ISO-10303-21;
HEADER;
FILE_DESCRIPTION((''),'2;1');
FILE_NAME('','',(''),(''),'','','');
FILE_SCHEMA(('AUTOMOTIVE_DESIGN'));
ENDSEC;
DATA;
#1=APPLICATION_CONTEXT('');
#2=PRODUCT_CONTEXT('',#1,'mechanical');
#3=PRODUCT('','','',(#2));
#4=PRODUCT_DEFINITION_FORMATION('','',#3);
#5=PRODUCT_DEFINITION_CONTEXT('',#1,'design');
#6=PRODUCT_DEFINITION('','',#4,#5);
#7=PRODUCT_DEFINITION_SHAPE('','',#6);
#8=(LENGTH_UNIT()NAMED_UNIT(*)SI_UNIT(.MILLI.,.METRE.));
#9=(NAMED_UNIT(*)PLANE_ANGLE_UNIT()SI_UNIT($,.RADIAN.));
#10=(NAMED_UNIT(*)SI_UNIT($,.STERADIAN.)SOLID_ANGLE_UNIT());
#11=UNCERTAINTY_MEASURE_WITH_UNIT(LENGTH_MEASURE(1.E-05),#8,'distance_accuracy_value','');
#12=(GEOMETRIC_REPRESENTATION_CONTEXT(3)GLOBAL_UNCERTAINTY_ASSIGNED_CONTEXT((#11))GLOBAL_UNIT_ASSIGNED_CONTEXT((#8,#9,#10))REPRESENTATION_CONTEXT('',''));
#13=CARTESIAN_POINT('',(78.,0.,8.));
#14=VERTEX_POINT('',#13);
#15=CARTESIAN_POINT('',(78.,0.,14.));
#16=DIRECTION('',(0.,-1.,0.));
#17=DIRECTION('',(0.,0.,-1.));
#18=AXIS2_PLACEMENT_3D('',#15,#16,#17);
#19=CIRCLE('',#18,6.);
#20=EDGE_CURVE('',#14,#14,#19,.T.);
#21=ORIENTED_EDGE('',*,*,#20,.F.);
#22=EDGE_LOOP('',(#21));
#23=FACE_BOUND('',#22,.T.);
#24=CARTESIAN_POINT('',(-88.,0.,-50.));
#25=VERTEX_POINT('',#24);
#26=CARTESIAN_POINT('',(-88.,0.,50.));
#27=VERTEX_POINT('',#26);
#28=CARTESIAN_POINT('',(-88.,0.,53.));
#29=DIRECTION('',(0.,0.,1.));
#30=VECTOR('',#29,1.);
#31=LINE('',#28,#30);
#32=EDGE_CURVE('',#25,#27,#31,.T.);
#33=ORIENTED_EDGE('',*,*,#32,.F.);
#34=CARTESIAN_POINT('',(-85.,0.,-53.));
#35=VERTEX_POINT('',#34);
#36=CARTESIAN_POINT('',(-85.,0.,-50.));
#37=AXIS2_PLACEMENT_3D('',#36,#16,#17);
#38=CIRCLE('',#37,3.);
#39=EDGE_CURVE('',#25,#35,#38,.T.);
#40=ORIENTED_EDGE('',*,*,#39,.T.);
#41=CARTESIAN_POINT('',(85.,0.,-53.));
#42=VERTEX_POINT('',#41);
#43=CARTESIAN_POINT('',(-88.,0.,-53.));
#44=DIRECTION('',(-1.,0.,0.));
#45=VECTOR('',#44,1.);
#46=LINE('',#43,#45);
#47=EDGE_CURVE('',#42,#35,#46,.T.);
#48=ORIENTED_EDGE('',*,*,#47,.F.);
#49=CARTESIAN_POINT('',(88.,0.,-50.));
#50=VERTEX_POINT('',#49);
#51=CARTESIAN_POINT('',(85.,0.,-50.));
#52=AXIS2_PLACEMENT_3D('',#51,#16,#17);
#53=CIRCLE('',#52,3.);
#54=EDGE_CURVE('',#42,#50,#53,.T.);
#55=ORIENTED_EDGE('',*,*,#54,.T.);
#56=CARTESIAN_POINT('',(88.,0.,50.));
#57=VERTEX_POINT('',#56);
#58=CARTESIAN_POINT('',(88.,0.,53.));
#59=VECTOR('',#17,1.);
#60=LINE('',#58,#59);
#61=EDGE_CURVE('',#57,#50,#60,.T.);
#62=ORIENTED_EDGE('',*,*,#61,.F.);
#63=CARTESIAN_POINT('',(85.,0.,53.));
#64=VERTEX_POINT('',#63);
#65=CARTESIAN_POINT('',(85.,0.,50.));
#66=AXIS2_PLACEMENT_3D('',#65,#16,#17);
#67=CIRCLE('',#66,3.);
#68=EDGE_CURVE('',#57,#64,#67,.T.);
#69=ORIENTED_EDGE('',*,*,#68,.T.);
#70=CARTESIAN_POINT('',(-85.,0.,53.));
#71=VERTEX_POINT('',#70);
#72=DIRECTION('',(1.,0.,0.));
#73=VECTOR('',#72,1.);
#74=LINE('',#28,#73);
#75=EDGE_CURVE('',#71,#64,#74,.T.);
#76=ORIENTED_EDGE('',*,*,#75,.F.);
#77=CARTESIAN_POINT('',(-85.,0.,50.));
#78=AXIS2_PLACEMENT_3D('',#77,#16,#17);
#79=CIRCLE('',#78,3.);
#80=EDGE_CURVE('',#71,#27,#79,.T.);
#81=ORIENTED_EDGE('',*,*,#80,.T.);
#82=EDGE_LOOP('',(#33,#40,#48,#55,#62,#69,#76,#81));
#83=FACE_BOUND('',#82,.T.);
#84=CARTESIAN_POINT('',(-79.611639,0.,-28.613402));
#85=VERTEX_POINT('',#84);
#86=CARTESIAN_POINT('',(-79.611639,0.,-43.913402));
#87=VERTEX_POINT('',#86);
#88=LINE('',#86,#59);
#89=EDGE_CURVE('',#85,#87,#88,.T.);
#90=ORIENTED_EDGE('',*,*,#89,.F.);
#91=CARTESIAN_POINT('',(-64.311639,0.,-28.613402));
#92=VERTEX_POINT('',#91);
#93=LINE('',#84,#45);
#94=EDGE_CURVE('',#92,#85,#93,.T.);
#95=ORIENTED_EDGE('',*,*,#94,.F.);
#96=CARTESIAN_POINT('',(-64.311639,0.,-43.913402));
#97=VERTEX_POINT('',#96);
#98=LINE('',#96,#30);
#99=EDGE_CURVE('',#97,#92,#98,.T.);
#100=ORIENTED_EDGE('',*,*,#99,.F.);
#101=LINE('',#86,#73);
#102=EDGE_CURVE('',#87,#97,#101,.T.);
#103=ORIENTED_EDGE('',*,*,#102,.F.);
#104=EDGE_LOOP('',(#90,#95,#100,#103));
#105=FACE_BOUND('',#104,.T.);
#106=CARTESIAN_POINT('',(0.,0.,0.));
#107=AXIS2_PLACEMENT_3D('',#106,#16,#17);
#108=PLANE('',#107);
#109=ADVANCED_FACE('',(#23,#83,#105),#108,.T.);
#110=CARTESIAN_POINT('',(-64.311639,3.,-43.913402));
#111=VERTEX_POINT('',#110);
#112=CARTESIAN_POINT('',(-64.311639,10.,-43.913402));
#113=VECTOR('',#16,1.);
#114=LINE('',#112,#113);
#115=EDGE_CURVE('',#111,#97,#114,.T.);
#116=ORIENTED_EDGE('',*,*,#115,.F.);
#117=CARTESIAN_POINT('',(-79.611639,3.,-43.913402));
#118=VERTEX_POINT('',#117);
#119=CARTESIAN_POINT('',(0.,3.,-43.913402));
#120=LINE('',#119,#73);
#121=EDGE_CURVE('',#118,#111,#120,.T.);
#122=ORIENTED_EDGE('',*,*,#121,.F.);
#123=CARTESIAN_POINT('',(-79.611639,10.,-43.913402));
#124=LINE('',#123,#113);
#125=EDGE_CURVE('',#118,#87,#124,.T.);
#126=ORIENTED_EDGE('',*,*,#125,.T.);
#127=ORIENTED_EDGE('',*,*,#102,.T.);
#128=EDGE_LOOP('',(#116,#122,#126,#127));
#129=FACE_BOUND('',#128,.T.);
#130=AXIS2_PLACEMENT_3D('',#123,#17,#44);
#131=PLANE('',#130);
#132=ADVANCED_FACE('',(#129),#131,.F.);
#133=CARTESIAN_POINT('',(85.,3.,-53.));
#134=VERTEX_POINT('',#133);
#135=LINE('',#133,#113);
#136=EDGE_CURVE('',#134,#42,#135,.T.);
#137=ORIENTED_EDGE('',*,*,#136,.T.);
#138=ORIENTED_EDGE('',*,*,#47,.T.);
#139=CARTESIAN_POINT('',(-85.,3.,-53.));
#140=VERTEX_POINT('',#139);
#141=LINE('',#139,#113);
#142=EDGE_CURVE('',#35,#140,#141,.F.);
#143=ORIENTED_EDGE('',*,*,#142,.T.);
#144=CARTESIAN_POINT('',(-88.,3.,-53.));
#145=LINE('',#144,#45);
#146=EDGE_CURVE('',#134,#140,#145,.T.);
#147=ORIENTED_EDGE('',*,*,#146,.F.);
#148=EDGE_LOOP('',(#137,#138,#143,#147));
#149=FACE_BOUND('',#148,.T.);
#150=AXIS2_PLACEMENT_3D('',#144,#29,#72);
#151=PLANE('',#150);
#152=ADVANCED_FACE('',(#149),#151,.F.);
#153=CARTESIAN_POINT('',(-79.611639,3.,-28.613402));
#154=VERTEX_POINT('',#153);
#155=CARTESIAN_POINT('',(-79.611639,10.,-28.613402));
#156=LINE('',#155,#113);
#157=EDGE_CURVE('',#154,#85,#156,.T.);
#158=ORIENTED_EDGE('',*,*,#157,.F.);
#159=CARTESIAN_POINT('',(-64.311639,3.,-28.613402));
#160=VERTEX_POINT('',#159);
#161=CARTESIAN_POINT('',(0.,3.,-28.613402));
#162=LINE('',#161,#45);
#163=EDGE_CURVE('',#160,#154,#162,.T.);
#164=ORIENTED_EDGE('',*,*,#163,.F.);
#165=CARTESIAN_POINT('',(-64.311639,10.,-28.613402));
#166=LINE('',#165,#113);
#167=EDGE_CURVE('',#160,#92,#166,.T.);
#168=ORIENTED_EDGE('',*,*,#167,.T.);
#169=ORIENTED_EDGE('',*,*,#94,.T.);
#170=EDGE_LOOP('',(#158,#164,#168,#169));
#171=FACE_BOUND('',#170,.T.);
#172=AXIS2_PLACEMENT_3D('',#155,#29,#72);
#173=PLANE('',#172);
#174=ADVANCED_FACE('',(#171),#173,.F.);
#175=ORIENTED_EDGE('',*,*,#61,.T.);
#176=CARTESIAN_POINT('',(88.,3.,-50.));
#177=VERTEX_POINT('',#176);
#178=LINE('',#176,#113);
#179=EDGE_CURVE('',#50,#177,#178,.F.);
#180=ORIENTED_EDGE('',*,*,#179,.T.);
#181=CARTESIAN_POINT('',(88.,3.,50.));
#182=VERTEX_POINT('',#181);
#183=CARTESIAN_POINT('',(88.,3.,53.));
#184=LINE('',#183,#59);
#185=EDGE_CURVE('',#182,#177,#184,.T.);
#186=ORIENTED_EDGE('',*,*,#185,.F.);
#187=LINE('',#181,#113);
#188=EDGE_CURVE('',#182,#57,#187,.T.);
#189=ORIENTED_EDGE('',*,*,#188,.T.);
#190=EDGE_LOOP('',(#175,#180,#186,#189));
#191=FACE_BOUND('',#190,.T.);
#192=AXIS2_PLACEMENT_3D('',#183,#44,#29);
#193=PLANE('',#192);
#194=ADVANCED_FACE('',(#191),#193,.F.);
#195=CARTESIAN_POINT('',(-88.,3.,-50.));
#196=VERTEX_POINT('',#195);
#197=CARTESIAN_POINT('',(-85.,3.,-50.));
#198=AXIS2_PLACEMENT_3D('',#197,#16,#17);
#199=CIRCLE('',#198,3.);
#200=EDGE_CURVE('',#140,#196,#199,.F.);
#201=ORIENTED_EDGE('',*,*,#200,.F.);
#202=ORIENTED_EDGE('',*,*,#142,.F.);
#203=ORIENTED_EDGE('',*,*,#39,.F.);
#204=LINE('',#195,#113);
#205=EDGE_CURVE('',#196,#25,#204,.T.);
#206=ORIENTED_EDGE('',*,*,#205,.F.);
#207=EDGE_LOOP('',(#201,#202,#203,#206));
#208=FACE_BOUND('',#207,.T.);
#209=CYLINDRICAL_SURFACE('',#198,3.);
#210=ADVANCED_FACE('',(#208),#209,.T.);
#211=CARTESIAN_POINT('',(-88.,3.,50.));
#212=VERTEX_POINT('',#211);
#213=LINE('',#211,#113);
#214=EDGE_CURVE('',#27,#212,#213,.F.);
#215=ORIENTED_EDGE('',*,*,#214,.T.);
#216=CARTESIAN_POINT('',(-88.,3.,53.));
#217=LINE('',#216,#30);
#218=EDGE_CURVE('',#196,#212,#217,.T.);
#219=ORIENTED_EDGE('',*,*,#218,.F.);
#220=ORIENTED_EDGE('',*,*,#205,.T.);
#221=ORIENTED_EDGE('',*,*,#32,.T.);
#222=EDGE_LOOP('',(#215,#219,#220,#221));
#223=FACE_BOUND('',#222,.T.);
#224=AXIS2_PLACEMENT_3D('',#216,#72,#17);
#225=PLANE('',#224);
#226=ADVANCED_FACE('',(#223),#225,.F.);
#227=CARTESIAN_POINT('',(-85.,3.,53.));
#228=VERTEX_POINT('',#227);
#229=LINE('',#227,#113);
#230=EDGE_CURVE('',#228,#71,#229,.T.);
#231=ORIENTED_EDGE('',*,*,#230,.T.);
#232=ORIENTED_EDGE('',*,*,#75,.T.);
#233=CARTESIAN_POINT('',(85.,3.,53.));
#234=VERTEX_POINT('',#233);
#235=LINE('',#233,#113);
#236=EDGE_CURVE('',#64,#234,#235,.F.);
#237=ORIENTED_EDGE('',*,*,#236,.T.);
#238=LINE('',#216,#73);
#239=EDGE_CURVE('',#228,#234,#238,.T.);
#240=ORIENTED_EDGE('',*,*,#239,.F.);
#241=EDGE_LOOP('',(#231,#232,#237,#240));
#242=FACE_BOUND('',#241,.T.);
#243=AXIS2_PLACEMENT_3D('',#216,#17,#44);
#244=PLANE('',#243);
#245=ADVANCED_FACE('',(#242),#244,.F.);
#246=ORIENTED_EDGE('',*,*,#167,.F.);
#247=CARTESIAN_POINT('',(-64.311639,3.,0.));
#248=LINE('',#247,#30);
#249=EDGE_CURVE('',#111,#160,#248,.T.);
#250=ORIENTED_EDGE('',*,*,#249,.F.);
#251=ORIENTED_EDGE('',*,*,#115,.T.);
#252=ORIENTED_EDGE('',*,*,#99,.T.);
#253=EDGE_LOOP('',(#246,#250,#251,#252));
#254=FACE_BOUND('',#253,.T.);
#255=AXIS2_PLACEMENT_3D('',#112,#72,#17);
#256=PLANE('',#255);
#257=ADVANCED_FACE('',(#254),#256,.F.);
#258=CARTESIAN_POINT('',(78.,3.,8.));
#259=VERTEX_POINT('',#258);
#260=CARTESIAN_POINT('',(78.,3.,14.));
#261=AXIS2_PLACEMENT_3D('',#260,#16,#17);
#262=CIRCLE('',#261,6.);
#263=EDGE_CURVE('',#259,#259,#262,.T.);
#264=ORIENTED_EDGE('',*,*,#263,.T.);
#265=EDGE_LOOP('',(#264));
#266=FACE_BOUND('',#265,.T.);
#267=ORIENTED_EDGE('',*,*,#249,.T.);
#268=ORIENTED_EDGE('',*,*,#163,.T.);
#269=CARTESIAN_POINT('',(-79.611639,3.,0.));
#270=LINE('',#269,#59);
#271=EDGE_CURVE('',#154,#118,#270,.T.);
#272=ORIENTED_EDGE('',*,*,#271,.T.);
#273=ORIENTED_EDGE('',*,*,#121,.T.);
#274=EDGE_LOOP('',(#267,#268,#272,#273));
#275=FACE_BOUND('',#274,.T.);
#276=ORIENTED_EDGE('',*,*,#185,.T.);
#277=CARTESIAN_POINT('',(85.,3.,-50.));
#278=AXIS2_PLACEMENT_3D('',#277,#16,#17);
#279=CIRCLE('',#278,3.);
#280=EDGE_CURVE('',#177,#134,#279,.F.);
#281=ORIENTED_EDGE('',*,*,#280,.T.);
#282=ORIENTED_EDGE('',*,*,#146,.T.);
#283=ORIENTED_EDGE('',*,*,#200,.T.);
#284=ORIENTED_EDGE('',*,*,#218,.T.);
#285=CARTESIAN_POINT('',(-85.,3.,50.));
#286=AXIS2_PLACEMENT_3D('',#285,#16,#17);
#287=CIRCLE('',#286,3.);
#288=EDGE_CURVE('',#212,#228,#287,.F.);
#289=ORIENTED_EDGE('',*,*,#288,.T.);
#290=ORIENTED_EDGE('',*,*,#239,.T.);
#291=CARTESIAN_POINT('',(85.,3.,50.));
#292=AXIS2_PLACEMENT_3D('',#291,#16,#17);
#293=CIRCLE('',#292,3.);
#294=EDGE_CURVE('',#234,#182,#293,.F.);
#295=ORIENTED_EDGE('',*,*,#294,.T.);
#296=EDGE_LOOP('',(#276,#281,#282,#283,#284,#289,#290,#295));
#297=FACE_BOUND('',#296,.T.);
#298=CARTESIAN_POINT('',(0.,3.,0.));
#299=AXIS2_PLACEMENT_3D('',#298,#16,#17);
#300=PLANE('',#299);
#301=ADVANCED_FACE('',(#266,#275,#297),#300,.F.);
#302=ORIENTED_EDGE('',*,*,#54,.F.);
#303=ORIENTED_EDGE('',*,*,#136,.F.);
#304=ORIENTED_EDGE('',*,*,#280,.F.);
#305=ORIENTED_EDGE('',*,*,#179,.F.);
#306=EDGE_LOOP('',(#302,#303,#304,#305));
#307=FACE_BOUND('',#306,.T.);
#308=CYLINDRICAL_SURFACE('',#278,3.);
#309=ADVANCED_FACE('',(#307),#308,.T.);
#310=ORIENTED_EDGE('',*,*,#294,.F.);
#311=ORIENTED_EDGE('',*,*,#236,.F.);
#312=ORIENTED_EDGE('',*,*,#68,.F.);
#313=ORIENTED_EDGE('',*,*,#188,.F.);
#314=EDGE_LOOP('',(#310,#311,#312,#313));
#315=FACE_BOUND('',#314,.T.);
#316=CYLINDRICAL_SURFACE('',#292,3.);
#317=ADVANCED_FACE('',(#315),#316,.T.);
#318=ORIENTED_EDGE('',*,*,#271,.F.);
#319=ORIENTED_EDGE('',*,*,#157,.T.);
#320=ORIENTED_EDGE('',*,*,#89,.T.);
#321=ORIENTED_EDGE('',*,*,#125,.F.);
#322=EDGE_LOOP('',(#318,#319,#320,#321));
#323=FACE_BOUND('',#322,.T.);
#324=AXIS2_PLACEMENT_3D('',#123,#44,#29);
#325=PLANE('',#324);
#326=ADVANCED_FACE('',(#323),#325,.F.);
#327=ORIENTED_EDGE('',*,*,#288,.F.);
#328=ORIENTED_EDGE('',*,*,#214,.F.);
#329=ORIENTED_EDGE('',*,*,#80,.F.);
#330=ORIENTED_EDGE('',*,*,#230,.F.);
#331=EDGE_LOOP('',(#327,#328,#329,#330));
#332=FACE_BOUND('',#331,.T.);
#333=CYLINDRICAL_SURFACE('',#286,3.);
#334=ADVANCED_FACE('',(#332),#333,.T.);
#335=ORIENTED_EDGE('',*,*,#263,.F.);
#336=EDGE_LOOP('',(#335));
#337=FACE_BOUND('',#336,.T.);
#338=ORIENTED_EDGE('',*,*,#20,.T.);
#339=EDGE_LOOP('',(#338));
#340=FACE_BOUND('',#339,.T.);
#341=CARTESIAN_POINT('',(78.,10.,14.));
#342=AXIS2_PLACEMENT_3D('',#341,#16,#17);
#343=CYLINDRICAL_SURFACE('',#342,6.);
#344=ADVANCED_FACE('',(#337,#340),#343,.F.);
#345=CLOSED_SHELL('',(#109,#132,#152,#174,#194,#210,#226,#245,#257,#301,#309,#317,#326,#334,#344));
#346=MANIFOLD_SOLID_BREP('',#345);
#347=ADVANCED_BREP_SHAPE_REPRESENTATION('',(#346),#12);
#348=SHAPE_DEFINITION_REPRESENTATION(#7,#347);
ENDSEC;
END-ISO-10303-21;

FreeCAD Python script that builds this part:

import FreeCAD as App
import Part
import Sketcher
Q = App.Units.Quantity


def edges_at(feature, points):
    """Names of the edges that pass closest to the given points."""
    edges = feature.Shape.Edges
    near = lambda p: min(range(len(edges)), key=lambda i: edges[i].distToShape(Part.Vertex(*p))[0])
    return sorted({f"Edge{near(p) + 1}" for p in points})


def add_polygon(sketch, points):
    """Adds a closed chain of lines whose ends are joined by coincident constraints."""
    first, n = sketch.GeometryCount, len(points)
    for a, b in zip(points, points[1:] + points[:1]):
        sketch.addGeometry(Part.LineSegment(App.Vector(*a, 0), App.Vector(*b, 0)), False)
    for i in range(n):
        sketch.addConstraint(Sketcher.Constraint("Coincident", first + i, 2, first + (i + 1) % n, 1))

doc = App.newDocument("Part")
body = doc.addObject("PartDesign::Body", "Body")

sketch1 = body.newObject("Sketcher::SketchObject", "Sketch")
sketch1.AttachmentSupport = (doc.getObject("XZ_Plane"), [""])
sketch1.MapMode = "FlatFace"
add_polygon(sketch1, [(-88, -53), (-88, 53), (88, 53), (88, -53)])
sketch1.addConstraint(Sketcher.Constraint("Vertical", 0))
sketch1.addConstraint(Sketcher.Constraint("Horizontal", 1))
sketch1.addConstraint(Sketcher.Constraint("Vertical", 2))
sketch1.addConstraint(Sketcher.Constraint("Horizontal", 3))
sketch1.addConstraint(Sketcher.Constraint("Symmetric", 0, 2, 2, 2, -1, 1))
sketch1.addConstraint(Sketcher.Constraint("DistanceX", 1, 1, 1, 2, Q("176 mm")))
sketch1.addConstraint(Sketcher.Constraint("DistanceY", 0, 1, 0, 2, Q("106 mm")))
pad1 = body.newObject("PartDesign::Pad", "Pad")
pad1.Profile = sketch1
pad1.Length = 3
pad1.Reversed = True
doc.recompute()

fillet = body.newObject("PartDesign::Fillet", "Fillet")
fillet.Base = (pad1, edges_at(pad1, [
    (88, 1.5, 53),
    (-88, 1.5, 53),
    (-88, 1.5, -53),
    (88, 1.5, -53),
]))
fillet.Radius = 3

sketch2 = body.newObject("Sketcher::SketchObject", "Sketch001")
sketch2.AttachmentSupport = (doc.getObject("XZ_Plane"), [""])
sketch2.MapMode = "FlatFace"
sketch2.addGeometry(Part.Circle(App.Vector(78, 14, 0), App.Vector(0, 0, 1), 6), False)
sketch2.addConstraint(Sketcher.Constraint("Diameter", 0, Q("12 mm")))
sketch2.addConstraint(Sketcher.Constraint("DistanceX", -1, 1, 0, 3, Q("78 mm")))
sketch2.addConstraint(Sketcher.Constraint("DistanceY", -1, 1, 0, 3, Q("14 mm")))
pocket1 = body.newObject("PartDesign::Pocket", "Pocket")
pocket1.Profile = sketch2
pocket1.Length = 10

sketch3 = body.newObject("Sketcher::SketchObject", "Sketch002")
sketch3.AttachmentSupport = (doc.getObject("XZ_Plane"), [""])
sketch3.MapMode = "FlatFace"
add_polygon(sketch3, [(-80, -29), (-80, -44), (-64, -44), (-64, -29)])
sketch3.addConstraint(Sketcher.Constraint("Vertical", 0))
sketch3.addConstraint(Sketcher.Constraint("Horizontal", 1))
sketch3.addConstraint(Sketcher.Constraint("Vertical", 2))
sketch3.addConstraint(Sketcher.Constraint("Horizontal", 3))
sketch3.addConstraint(Sketcher.Constraint("Equal", 3, 0))
sketch3.addConstraint(Sketcher.Constraint("DistanceX", 1, 1, 1, 2, Q("15.3 mm")))
sketch3.addConstraint(Sketcher.Constraint("DistanceY", 0, 2, -1, 1, Q("43.913402 mm")))
sketch3.addConstraint(Sketcher.Constraint("DistanceX", 0, 2, -1, 1, Q("79.611639 mm")))
pocket2 = body.newObject("PartDesign::Pocket", "Pocket001")
pocket2.Profile = sketch3
pocket2.Length = 10

doc.recompute()
